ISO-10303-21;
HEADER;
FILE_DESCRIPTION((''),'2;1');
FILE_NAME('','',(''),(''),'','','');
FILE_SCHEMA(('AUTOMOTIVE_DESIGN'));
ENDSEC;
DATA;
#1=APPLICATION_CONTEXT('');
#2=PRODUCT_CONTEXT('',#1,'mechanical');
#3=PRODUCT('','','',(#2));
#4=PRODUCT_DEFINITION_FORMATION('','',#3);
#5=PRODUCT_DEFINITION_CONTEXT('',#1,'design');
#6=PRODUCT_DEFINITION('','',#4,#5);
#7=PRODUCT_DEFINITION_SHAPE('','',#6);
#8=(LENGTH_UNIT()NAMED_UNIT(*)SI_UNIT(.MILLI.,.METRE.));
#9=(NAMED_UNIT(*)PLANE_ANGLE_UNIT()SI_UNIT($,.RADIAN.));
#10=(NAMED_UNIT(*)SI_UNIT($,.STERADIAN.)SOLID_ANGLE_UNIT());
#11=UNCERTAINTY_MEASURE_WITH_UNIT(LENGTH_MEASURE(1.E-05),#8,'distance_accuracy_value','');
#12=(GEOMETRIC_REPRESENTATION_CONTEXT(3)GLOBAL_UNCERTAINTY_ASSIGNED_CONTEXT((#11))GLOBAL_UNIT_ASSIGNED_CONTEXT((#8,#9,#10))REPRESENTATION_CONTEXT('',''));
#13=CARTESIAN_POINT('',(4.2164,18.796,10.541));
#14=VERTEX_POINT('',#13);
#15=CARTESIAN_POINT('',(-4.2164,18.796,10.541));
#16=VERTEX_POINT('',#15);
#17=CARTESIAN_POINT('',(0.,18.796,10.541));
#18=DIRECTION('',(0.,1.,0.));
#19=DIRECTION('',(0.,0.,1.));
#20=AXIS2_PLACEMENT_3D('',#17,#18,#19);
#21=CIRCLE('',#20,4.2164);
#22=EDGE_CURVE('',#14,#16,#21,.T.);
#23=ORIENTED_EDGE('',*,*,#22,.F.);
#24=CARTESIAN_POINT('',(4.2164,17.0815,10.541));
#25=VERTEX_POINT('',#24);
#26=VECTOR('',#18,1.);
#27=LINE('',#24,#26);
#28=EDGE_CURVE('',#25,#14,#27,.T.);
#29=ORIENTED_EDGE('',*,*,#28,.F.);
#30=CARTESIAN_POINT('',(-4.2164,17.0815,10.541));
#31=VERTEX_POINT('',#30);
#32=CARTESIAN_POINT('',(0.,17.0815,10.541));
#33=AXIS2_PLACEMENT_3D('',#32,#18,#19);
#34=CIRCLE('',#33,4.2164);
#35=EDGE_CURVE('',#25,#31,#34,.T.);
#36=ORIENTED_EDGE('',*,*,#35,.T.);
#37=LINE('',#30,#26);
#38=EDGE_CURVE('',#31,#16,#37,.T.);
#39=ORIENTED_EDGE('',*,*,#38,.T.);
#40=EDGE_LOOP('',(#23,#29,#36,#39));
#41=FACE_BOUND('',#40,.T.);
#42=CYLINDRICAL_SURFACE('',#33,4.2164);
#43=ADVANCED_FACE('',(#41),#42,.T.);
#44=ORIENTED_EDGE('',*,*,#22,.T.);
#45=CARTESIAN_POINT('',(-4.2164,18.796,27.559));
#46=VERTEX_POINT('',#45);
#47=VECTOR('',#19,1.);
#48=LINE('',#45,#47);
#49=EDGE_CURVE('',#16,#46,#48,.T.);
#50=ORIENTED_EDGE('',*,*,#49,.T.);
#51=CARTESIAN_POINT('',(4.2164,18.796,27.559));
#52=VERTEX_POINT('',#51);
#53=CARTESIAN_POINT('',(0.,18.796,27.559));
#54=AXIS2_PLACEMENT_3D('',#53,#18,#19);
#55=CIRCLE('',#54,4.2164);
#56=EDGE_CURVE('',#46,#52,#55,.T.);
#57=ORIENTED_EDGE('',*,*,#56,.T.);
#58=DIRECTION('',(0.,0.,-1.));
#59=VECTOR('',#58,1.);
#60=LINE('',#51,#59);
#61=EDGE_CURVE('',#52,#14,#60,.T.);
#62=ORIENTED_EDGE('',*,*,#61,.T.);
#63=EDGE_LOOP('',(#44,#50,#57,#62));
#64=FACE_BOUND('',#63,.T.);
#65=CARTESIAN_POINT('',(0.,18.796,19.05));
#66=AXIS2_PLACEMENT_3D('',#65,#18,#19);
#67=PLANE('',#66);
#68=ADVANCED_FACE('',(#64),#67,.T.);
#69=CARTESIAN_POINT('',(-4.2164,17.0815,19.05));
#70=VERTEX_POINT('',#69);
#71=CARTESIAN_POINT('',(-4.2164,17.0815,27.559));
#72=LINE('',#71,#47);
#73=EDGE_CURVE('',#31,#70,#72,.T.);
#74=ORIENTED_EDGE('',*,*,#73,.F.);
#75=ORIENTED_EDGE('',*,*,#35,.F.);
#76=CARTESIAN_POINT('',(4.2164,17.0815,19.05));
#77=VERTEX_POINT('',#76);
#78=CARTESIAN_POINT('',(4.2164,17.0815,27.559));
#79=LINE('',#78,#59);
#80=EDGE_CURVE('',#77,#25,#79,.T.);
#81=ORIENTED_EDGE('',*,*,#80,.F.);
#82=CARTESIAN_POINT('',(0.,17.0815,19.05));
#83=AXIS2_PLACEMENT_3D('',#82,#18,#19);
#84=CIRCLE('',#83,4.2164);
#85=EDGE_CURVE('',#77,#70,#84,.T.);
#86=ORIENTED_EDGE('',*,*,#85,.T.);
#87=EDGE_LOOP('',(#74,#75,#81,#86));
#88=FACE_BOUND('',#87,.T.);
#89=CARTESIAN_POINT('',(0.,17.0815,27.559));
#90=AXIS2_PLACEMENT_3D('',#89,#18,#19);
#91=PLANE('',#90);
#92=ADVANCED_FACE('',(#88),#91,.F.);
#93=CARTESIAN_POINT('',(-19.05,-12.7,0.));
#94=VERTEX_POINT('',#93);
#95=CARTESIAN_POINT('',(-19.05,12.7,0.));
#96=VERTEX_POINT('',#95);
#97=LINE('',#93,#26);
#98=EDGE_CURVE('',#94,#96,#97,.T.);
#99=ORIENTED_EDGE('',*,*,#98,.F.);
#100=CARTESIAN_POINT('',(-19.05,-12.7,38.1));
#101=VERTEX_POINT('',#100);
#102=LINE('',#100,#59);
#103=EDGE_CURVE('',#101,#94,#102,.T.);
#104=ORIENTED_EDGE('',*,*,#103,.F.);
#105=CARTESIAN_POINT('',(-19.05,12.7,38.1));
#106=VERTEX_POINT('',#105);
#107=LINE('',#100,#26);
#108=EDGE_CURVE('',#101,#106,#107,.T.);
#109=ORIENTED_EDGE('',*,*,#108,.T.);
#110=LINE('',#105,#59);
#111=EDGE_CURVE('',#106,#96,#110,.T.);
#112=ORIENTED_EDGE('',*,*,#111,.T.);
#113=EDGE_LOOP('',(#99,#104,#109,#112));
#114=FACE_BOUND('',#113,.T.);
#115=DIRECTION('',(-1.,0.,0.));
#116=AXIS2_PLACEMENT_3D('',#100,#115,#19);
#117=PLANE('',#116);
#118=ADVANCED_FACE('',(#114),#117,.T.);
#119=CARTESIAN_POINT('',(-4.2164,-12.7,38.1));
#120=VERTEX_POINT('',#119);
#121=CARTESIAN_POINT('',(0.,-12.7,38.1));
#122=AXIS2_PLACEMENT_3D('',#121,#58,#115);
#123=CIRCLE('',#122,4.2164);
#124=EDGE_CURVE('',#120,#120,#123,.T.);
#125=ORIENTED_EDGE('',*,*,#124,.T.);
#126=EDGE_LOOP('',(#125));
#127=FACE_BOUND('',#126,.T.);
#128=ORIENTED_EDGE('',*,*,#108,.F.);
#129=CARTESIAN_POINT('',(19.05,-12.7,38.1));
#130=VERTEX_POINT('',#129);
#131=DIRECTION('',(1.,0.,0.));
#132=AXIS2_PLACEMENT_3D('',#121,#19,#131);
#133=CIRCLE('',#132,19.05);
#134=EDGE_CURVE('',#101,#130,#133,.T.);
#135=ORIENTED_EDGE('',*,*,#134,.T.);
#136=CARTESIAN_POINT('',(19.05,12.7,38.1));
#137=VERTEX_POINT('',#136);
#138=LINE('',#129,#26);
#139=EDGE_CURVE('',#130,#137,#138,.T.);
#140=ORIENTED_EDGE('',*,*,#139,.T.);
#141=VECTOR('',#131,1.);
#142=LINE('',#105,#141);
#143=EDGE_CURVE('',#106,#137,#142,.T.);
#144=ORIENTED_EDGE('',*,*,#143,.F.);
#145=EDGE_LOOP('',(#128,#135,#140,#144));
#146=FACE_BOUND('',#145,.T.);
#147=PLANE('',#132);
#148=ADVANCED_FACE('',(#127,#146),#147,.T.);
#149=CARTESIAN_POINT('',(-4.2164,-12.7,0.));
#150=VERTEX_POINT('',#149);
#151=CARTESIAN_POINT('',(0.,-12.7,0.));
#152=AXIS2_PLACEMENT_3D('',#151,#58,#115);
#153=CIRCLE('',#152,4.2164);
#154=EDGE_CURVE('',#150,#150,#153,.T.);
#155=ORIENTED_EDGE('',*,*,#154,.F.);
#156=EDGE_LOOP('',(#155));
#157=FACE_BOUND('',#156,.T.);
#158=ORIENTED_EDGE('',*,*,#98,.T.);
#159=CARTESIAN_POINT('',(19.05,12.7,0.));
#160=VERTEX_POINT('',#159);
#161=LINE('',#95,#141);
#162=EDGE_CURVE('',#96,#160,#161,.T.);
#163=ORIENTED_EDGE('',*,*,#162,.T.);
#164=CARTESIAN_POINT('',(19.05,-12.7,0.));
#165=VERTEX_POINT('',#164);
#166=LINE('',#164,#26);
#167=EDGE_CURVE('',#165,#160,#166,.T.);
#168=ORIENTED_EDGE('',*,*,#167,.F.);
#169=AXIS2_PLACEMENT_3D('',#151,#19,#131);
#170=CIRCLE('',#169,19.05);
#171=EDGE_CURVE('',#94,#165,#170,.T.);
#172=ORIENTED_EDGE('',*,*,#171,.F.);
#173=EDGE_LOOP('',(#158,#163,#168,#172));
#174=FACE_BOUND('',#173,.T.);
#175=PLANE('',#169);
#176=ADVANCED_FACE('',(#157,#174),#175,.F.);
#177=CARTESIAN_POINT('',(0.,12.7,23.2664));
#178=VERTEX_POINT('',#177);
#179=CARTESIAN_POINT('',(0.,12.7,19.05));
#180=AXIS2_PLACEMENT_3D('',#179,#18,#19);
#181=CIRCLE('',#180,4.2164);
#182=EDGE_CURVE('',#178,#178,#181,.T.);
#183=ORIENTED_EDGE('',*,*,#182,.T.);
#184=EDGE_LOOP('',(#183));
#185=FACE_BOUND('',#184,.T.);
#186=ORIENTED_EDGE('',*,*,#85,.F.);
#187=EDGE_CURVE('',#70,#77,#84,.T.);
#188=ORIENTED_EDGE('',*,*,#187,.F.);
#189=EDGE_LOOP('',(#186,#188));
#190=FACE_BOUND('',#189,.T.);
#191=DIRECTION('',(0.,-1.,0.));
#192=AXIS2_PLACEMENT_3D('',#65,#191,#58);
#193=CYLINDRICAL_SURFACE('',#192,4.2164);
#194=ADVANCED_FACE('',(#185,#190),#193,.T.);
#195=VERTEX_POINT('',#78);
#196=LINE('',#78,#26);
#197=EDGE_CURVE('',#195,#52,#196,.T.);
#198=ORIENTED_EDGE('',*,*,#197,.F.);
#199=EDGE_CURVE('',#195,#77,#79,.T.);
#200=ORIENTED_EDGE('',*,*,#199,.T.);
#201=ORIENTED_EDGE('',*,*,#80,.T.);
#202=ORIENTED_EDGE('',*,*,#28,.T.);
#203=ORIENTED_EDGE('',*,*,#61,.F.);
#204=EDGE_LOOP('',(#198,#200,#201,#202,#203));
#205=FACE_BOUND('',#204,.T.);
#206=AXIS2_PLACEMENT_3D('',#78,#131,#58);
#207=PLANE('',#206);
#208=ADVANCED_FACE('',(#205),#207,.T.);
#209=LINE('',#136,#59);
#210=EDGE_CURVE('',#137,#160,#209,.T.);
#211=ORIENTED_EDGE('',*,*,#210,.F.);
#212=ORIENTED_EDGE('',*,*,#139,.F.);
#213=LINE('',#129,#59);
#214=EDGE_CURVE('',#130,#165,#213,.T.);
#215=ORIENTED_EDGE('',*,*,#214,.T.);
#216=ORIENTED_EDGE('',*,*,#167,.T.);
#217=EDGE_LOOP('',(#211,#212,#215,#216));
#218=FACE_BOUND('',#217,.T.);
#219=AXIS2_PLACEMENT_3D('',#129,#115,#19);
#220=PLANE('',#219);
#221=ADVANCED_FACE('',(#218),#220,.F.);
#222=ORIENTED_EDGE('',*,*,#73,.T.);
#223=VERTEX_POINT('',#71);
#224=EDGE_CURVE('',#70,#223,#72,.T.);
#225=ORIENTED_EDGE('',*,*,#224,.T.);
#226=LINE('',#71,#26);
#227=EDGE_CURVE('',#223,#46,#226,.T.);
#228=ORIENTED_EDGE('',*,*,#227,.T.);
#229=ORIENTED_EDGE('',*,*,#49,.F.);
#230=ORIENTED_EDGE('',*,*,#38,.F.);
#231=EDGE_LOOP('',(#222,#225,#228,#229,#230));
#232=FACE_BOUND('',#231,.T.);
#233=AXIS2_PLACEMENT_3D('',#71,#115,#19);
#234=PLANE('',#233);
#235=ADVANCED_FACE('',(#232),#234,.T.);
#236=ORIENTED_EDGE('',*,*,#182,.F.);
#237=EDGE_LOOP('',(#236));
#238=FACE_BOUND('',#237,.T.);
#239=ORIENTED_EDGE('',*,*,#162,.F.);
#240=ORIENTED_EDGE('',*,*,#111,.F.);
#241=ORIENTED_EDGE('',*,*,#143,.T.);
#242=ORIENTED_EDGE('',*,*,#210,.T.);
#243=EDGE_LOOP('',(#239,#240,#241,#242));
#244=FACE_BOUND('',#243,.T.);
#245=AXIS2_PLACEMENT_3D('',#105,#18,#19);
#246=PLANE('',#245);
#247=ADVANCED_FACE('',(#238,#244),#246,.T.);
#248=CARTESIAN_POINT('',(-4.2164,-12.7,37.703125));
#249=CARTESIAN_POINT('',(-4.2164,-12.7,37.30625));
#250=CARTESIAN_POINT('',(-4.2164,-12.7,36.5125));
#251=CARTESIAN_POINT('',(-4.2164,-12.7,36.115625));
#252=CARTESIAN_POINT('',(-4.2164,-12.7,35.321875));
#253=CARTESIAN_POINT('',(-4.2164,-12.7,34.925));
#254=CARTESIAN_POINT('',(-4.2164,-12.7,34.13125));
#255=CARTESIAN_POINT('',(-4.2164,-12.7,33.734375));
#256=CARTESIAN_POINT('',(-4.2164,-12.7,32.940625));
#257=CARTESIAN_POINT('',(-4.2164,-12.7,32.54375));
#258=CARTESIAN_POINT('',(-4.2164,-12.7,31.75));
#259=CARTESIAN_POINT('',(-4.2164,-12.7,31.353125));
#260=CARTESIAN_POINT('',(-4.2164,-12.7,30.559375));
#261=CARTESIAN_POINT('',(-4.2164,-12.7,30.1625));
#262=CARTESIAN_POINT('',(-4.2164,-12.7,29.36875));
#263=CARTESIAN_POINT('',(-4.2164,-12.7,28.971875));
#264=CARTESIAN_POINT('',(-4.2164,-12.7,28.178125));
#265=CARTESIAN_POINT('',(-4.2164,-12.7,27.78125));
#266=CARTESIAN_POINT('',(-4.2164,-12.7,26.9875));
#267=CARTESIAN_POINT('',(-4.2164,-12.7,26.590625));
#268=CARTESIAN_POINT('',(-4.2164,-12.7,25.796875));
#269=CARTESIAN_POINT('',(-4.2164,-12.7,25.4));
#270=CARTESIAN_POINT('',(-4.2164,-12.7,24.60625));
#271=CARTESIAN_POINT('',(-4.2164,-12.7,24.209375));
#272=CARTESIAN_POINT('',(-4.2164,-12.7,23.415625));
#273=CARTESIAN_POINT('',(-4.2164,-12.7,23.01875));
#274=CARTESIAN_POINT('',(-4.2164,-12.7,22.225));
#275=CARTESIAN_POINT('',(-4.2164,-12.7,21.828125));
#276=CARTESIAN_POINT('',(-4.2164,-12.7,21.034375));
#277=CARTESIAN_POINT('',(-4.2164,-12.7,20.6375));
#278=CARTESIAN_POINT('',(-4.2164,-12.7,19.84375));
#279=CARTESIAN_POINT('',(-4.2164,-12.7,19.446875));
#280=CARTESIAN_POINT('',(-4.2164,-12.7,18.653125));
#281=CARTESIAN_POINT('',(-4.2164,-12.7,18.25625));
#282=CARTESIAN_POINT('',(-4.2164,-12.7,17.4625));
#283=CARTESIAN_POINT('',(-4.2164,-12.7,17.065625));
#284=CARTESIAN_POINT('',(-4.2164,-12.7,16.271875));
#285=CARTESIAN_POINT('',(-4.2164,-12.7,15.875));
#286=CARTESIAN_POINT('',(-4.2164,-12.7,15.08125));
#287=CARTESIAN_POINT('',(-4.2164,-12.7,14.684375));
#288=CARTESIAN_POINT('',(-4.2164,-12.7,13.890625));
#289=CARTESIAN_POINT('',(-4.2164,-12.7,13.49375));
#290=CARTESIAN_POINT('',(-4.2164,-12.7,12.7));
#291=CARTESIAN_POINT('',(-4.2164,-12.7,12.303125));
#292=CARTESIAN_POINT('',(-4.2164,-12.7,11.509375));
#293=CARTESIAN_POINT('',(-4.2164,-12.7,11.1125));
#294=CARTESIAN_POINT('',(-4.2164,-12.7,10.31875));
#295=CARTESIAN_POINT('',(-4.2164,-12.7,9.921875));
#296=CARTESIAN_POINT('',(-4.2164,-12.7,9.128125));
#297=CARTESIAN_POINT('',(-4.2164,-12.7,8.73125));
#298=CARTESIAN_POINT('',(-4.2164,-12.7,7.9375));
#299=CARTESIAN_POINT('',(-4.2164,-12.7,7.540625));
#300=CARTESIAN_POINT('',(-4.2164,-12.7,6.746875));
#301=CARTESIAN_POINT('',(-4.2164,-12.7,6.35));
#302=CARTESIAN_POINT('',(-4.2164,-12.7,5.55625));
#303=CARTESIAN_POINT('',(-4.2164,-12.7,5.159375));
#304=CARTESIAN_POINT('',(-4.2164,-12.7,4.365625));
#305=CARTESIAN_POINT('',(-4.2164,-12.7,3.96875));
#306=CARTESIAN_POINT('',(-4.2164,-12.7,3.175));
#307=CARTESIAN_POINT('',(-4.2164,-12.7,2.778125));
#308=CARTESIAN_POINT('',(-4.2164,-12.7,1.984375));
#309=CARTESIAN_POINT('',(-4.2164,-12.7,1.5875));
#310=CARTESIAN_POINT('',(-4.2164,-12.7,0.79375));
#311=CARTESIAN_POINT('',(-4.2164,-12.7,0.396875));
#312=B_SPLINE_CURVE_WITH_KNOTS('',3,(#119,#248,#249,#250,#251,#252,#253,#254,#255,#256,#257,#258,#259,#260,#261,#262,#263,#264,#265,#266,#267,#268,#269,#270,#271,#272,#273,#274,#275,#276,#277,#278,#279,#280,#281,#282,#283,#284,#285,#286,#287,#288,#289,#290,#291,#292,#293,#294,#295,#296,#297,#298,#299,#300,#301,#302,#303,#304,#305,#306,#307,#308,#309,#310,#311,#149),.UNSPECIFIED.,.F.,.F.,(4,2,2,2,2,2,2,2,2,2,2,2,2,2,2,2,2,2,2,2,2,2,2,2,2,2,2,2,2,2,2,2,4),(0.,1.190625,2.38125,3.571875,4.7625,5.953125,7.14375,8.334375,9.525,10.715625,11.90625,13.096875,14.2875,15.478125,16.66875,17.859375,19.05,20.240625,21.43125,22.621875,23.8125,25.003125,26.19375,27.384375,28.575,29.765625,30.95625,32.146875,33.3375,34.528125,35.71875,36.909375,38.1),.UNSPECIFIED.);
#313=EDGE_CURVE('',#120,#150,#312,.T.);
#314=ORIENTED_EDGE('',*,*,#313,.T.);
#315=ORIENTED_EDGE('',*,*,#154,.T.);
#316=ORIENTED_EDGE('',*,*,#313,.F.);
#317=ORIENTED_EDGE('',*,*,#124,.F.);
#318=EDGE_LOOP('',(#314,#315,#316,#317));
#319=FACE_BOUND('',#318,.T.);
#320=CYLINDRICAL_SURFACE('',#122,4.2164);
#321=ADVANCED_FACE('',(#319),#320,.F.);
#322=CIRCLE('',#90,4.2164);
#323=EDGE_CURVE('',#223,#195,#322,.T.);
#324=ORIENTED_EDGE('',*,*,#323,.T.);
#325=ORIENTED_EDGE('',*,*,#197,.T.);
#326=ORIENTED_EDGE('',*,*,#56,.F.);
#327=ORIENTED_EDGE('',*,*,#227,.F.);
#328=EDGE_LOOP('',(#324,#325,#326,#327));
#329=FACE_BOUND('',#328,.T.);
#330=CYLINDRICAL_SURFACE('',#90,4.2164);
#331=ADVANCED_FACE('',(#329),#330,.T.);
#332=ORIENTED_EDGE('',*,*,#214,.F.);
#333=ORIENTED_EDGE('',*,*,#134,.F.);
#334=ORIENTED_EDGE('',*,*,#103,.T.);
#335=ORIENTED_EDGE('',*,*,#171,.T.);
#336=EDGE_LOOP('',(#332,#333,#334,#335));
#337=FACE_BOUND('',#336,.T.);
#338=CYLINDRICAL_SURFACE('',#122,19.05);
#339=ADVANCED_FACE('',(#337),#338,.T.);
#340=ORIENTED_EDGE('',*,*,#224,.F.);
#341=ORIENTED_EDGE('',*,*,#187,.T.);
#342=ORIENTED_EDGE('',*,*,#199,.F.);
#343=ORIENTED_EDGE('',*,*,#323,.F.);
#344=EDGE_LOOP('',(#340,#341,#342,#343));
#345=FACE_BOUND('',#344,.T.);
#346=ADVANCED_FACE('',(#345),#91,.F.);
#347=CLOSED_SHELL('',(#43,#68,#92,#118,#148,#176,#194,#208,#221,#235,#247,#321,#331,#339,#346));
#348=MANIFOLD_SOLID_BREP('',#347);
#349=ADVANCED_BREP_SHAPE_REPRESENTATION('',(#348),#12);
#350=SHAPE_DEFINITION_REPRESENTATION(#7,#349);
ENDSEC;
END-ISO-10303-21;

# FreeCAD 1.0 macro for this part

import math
import FreeCAD as App
import Part
import Sketcher
Q = App.Units.Quantity

doc = App.newDocument("Part")
body = doc.addObject("PartDesign::Body", "Body")

# Sketch on XY plane
sketch1 = doc.addObject("Sketcher::SketchObject", "Sketch")
body.addObject(sketch1)
sketch1.AttachmentSupport = (doc.XY_Plane, [""])
sketch1.MapMode = "FlatFace"
sketch1.addGeometry([
    Part.LineSegment(App.Vector(-19, 13, 0), App.Vector(-19, -13, 0)),
    Part.ArcOfCircle(Part.Circle(App.Vector(0, -13, 0), App.Vector(0, 0, 1), 19), math.radians(180), math.radians(360)),
    Part.LineSegment(App.Vector(19, -13, 0), App.Vector(19, 13, 0)),
    Part.LineSegment(App.Vector(19, 13, 0), App.Vector(-19, 13, 0)),
], False)
sketch1.addConstraint([
    Sketcher.Constraint("Tangent", 0, 2, 1, 1),
    Sketcher.Constraint("Tangent", 1, 2, 2, 1),
    Sketcher.Constraint("Coincident", 2, 2, 3, 1),
    Sketcher.Constraint("Coincident", 3, 2, 0, 1),
    Sketcher.Constraint("Vertical", 0),
    Sketcher.Constraint("Vertical", 2),
    Sketcher.Constraint("Horizontal", 3),
    Sketcher.Constraint("Symmetric", 0, 2, 2, 2, -1, 1),
    Sketcher.Constraint("DistanceY", 0, 2, 0, 1, Q("1 in")),
    Sketcher.Constraint("Radius", 1, Q("0.75 in")),
])
pad1 = doc.addObject("PartDesign::Pad", "Pad")
body.addObject(pad1)
pad1.Profile = sketch1
pad1.Length = Q("1.5 in")

# Sketch on XY plane
sketch2 = doc.addObject("Sketcher::SketchObject", "Sketch001")
body.addObject(sketch2)
sketch2.AttachmentSupport = (doc.XY_Plane, [""])
sketch2.MapMode = "FlatFace"
sketch2.addGeometry(Part.Circle(App.Vector(0, -12.7, 0), App.Vector(0, 0, 1), 4.2), False)
sketch2.addConstraint([
    Sketcher.Constraint("PointOnObject", 0, 3, -2),
    Sketcher.Constraint("Diameter", 0, Q("0.332 in")),
    Sketcher.Constraint("DistanceY", 0, 3, -1, 1, Q("0.5 in")),
])
pocket1 = doc.addObject("PartDesign::Pocket", "Pocket")
body.addObject(pocket1)
pocket1.Profile = sketch2
pocket1.Length = Q("1.5 in")
pocket1.Reversed = True

# Sketch on XZ plane
sketch3 = doc.addObject("Sketcher::SketchObject", "Sketch002")
body.addObject(sketch3)
sketch3.AttachmentSupport = (doc.XZ_Plane, [""])
sketch3.MapMode = "FlatFace"
sketch3.AttachmentOffset = App.Placement(App.Vector(0, 0, -0.5 * 25.4), App.Rotation())
sketch3.addGeometry(Part.Circle(App.Vector(0, 19.1, 0), App.Vector(0, 0, 1), 4.2), False)
sketch3.addConstraint([
    Sketcher.Constraint("PointOnObject", 0, 3, -2),
    Sketcher.Constraint("Diameter", 0, Q("0.332 in")),
    Sketcher.Constraint("DistanceY", -1, 1, 0, 3, Q("0.75 in")),
])
pad2 = doc.addObject("PartDesign::Pad", "Pad001")
body.addObject(pad2)
pad2.Profile = sketch3
pad2.Length = Q("0.24 in")
pad2.Reversed = True

# Sketch on XZ plane
sketch4 = doc.addObject("Sketcher::SketchObject", "Sketch003")
body.addObject(sketch4)
sketch4.AttachmentSupport = (doc.XZ_Plane, [""])
sketch4.MapMode = "FlatFace"
sketch4.AttachmentOffset = App.Placement(App.Vector(0, 0, -0.74 * 25.4), App.Rotation())
sketch4.addGeometry([
    Part.LineSegment(App.Vector(-4.2, 10.5, 0), App.Vector(-4.2, 27.6, 0)),
    Part.ArcOfCircle(Part.Circle(App.Vector(0, 27.6, 0), App.Vector(0, 0, 1), 4.2), math.radians(0), math.radians(180)),
    Part.LineSegment(App.Vector(4.2, 27.6, 0), App.Vector(4.2, 10.5, 0)),
    Part.ArcOfCircle(Part.Circle(App.Vector(0, 10.5, 0), App.Vector(0, 0, 1), 4.2), math.radians(180), math.radians(360)),
], False)
sketch4.addConstraint([
    Sketcher.Constraint("Tangent", 0, 2, 1, 2),
    Sketcher.Constraint("Tangent", 1, 1, 2, 1),
    Sketcher.Constraint("Tangent", 2, 2, 3, 2),
    Sketcher.Constraint("Tangent", 3, 1, 0, 1),
    Sketcher.Constraint("Vertical", 0),
    Sketcher.Constraint("Vertical", 2),
    Sketcher.Constraint("PointOnObject", 1, 3, -2),
    Sketcher.Constraint("Radius", 1, Q("0.166 in")),
    Sketcher.Constraint("DistanceY", 0, 1, 0, 2, Q("0.67 in")),
    Sketcher.Constraint("DistanceY", -1, 1, 1, 3, Q("1.085 in")),
])
pad3 = doc.addObject("PartDesign::Pad", "Pad002")
body.addObject(pad3)
pad3.Profile = sketch4
pad3.Length = Q("0.0675 in")

doc.recompute()
